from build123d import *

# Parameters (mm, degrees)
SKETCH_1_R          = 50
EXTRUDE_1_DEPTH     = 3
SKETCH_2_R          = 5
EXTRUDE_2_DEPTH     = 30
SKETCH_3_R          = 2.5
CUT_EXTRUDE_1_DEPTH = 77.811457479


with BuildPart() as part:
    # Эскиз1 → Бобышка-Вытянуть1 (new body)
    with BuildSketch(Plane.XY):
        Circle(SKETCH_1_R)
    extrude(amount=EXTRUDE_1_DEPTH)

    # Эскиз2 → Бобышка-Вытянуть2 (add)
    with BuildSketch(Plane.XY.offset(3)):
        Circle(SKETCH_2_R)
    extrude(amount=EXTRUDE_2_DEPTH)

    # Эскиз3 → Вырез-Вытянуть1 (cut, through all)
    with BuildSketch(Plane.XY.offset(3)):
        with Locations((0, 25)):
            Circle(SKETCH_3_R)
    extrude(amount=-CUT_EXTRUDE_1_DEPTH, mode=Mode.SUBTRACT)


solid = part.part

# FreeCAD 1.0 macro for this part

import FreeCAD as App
import Part
import Sketcher
from FreeCAD import Vector

doc = App.newDocument("Part")
body = doc.addObject("PartDesign::Body", "Body")

# Sketch on XY plane
sketch1 = body.newObject("Sketcher::SketchObject", "Sketch")
sketch1.AttachmentSupport = (doc.getObject("XY_Plane"), [""])
sketch1.MapMode = "FlatFace"
sketch1.addGeometry(Part.Circle(Vector(0, 0, 0), Vector(0, 0, 1), 50), False)
sketch1.addConstraint([
    Sketcher.Constraint("Coincident", 0, 3, -1, 1),
    Sketcher.Constraint("Diameter", 0, 100.0),
])
pad1 = body.newObject("PartDesign::Pad", "Pad")
pad1.Profile = sketch1
pad1.Length = 3

# Sketch on XY plane
sketch2 = body.newObject("Sketcher::SketchObject", "Sketch001")
sketch2.AttachmentSupport = (doc.getObject("XY_Plane"), [""])
sketch2.MapMode = "FlatFace"
sketch2.AttachmentOffset = App.Placement(Vector(0, 0, 3), App.Rotation())
sketch2.addGeometry(Part.Circle(Vector(0, 0, 0), Vector(0, 0, 1), 5), False)
sketch2.addConstraint([
    Sketcher.Constraint("Coincident", 0, 3, -1, 1),
    Sketcher.Constraint("Diameter", 0, 10.0),
])
pad2 = body.newObject("PartDesign::Pad", "Pad001")
pad2.Profile = sketch2
pad2.Length = 30

# Sketch on XY plane
sketch3 = body.newObject("Sketcher::SketchObject", "Sketch002")
sketch3.AttachmentSupport = (doc.getObject("XY_Plane"), [""])
sketch3.MapMode = "FlatFace"
sketch3.AttachmentOffset = App.Placement(Vector(0, 0, 3), App.Rotation())
sketch3.addGeometry(Part.Circle(Vector(0, 25, 0), Vector(0, 0, 1), 2.5), False)
sketch3.addConstraint([
    Sketcher.Constraint("PointOnObject", 0, 3, -2),
    Sketcher.Constraint("Diameter", 0, 5.0),
    Sketcher.Constraint("DistanceY", -1, 1, 0, 3, 25.0),
])
pocket1 = body.newObject("PartDesign::Pocket", "Pocket")
pocket1.Profile = sketch3
pocket1.Type = "ThroughAll"

doc.recompute()
